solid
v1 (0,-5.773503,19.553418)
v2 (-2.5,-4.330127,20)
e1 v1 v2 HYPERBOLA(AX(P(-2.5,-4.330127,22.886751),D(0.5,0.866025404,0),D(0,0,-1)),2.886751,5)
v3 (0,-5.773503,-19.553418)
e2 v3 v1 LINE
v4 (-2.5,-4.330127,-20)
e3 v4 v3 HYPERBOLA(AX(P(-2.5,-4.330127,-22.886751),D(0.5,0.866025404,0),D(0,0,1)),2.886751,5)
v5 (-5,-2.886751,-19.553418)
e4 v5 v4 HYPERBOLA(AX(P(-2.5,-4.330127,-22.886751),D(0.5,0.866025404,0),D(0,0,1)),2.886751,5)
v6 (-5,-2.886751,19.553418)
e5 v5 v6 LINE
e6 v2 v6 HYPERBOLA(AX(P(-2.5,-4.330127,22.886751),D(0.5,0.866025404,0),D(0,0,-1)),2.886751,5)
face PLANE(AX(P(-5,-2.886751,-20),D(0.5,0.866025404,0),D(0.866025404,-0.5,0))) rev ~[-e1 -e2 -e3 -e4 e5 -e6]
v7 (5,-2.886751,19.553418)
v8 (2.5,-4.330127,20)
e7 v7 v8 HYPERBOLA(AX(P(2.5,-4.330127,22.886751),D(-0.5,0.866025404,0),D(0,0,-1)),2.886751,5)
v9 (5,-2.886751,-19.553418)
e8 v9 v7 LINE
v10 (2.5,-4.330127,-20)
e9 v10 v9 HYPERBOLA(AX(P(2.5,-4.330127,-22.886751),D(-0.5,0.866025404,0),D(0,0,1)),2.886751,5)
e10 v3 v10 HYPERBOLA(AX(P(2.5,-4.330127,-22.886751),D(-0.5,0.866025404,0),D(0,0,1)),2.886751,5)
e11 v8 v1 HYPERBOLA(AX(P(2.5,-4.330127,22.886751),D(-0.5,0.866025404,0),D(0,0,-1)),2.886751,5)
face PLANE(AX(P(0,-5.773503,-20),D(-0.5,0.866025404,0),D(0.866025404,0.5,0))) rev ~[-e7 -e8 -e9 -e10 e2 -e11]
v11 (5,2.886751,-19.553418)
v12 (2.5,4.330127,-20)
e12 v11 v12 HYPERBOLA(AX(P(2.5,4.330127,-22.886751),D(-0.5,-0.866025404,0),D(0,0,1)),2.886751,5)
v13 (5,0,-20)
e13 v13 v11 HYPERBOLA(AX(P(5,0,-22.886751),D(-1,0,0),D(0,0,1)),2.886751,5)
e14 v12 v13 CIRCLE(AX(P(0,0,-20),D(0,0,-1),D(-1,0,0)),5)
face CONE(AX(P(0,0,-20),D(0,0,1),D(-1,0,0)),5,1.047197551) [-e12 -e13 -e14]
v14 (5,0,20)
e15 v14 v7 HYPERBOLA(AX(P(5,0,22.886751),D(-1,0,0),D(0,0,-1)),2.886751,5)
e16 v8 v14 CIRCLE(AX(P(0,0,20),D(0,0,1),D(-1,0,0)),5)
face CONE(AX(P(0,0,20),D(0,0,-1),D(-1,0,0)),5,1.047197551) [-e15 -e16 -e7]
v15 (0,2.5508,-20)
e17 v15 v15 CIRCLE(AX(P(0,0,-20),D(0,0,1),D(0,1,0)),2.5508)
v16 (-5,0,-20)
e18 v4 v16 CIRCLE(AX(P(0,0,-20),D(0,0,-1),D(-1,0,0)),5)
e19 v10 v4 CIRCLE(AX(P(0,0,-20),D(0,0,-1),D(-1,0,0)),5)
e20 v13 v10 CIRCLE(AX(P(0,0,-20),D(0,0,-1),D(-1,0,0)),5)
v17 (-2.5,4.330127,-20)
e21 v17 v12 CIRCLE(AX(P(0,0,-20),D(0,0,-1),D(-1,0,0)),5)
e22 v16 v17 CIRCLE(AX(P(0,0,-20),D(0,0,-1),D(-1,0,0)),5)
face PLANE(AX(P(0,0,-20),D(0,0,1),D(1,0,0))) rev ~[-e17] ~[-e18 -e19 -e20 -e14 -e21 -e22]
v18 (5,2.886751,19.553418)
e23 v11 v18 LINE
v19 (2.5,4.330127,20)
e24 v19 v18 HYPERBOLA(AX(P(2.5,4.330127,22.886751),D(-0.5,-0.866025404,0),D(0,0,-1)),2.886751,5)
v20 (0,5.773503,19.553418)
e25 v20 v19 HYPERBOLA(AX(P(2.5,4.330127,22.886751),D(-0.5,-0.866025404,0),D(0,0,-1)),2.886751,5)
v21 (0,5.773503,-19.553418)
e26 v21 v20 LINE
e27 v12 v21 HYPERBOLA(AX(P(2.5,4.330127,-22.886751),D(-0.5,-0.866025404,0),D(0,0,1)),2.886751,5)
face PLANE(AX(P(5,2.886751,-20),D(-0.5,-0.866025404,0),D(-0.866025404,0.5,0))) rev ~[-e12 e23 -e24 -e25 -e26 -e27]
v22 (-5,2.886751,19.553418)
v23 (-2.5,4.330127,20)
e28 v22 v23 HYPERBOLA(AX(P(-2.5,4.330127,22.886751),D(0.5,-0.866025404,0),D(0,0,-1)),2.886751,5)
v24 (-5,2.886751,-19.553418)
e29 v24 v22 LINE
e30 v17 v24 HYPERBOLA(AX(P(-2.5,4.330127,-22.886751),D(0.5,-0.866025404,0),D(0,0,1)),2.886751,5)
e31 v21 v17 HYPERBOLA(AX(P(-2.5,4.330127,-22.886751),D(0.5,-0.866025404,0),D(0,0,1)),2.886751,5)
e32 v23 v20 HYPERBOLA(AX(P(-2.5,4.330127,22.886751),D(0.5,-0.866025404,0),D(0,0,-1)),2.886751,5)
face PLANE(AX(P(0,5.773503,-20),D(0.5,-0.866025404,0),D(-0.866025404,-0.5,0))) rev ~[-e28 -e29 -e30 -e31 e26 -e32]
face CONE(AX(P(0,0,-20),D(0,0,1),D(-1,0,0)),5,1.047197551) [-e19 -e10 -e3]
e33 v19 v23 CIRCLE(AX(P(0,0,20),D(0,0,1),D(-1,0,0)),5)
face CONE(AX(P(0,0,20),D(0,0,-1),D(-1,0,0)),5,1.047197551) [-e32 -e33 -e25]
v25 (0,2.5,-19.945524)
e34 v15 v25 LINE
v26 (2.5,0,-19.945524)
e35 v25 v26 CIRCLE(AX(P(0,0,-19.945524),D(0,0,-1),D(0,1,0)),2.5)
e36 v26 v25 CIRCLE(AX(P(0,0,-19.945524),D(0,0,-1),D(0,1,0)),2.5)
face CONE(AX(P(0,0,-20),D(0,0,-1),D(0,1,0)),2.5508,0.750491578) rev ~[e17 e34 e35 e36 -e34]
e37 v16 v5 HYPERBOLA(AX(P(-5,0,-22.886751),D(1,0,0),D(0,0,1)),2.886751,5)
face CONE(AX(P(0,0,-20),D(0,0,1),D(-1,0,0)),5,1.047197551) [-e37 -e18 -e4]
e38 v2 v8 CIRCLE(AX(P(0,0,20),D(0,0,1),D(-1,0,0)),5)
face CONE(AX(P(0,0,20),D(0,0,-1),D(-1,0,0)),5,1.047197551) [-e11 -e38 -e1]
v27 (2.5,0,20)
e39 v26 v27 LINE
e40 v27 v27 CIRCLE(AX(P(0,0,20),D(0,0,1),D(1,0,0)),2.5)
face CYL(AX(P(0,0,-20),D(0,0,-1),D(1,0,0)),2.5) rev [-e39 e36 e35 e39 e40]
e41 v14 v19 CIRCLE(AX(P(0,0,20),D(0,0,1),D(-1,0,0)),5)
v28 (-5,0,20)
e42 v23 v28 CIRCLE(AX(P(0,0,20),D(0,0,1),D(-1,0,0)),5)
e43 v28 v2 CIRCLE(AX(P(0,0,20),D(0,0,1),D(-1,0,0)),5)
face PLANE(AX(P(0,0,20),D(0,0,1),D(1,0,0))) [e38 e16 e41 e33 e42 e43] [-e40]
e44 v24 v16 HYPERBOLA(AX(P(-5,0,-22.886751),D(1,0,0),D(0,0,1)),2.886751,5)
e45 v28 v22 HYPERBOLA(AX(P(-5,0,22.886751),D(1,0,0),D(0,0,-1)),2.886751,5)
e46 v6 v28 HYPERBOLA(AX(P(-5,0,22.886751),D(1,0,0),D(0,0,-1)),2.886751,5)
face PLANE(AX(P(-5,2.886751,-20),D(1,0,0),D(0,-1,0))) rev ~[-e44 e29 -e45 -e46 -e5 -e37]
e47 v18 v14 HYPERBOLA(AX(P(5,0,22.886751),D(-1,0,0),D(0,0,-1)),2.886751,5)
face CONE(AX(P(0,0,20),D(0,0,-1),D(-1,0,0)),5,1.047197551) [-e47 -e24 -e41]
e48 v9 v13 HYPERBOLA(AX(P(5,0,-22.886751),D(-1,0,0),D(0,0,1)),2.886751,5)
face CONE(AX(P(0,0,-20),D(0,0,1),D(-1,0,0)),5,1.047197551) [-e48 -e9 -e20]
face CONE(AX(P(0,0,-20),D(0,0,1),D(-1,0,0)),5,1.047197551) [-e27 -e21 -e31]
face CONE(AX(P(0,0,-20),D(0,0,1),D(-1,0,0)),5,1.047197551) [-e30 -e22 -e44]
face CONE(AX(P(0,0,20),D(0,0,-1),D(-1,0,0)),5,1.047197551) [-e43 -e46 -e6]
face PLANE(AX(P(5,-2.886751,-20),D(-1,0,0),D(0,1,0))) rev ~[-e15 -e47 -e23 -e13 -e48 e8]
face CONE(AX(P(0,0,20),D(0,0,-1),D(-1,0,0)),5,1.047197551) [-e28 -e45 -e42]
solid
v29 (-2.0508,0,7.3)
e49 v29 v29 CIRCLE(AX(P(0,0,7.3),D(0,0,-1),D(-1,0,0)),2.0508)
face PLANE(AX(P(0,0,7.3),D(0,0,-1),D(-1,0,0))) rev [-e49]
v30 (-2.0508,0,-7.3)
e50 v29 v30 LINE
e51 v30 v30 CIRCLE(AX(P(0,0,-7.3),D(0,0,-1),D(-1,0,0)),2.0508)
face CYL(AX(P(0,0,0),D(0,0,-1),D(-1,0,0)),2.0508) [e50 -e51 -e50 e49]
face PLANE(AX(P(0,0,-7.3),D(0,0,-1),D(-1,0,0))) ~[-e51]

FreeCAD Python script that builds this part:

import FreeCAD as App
import Part
import Sketcher
Q = App.Units.Quantity


def faces_at(feature, points):
    """Names of the faces that lie closest to the given points."""
    faces = feature.Shape.Faces
    near = lambda p: min(range(len(faces)), key=lambda i: faces[i].distToShape(Part.Vertex(*p))[0])
    return sorted({f"Face{near(p) + 1}" for p in points})


def add_polygon(sketch, points):
    """Adds a closed chain of lines whose ends are joined by coincident constraints."""
    first, n = sketch.GeometryCount, len(points)
    for a, b in zip(points, points[1:] + points[:1]):
        sketch.addGeometry(Part.LineSegment(App.Vector(*a, 0), App.Vector(*b, 0)), False)
    for i in range(n):
        sketch.addConstraint(Sketcher.Constraint("Coincident", first + i, 2, first + (i + 1) % n, 1))

doc = App.newDocument("Part")
body = doc.addObject("PartDesign::Body", "Body")

sketch1 = doc.addObject("Sketcher::SketchObject", "Sketch")
body.addObject(sketch1)
sketch1.AttachmentSupport = (doc.XY_Plane, [""])
sketch1.MapMode = "FlatFace"
add_polygon(sketch1, [(0, 5.8), (-5, 2.9), (-5, -2.9), (0, -5.8), (5, -2.9), (5, 2.9)])
sketch1.addGeometry(Part.Circle(App.Vector(0, 0, 0), App.Vector(0, 0, 1), 2.5), False)
sketch1.addConstraint([
    Sketcher.Constraint("Vertical", 1),
    Sketcher.Constraint("Vertical", 4),
    Sketcher.Constraint("Coincident", 6, 3, -1, 1),
    Sketcher.Constraint("Symmetric", 0, 2, 3, 2, -1, 1),
    Sketcher.Constraint("Symmetric", 2, 2, 5, 2, -1, 1),
    Sketcher.Constraint("PointOnObject", 2, 2, -2),
    Sketcher.Constraint("Parallel", 2, 5),
    Sketcher.Constraint("Horizontal", 1, 2, 3, 2),
    Sketcher.Constraint("Diameter", 6, Q("5 mm")),
    Sketcher.Constraint("Angle", 0, Q("-150 deg")),
    Sketcher.Constraint("DistanceX", 0, 2, -1, 1, Q("5 mm")),
    Sketcher.Constraint("DistanceY", 1, 2, 1, 1, Q("5.773503 mm")),
])
pad1 = doc.addObject("PartDesign::Pad", "Pad")
body.addObject(pad1)
pad1.Profile = sketch1
pad1.Type = "TwoLengths"
pad1.Length = 20
pad1.Length2 = 20

sketch2 = doc.addObject("Sketcher::SketchObject", "Sketch001")
body.addObject(sketch2)
sketch2.AttachmentSupport = (doc.YZ_Plane, [""])
sketch2.MapMode = "FlatFace"
add_polygon(sketch2, [(0, -20), (2.6, -20), (0, -17.3)])
sketch2.addConstraint([
    Sketcher.Constraint("Horizontal", 0),
    Sketcher.Constraint("Vertical", 2),
    Sketcher.Constraint("PointOnObject", 1, 2, -2),
    Sketcher.Constraint("Angle", 1, Q("133 deg")),
    Sketcher.Constraint("DistanceY", 0, 2, -1, 1, Q("20 mm")),
    Sketcher.Constraint("DistanceX", 0, 1, 0, 2, Q("2.5508 mm")),
])
groove = doc.addObject("PartDesign::Groove", "Groove")
body.addObject(groove)
groove.Profile = sketch2
groove.ReferenceAxis = (sketch2, ["V_Axis"])
groove.Angle = 360
body2 = doc.addObject("PartDesign::Body", "Body001")

sketch3 = doc.addObject("Sketcher::SketchObject", "Sketch002")
body2.addObject(sketch3)
sketch3.AttachmentSupport = (doc.getObject("XY_Plane001"), [""])
sketch3.MapMode = "FlatFace"
sketch3.AttachmentOffset = App.Placement(App.Vector(0, 0, -20), App.Rotation())
add_polygon(sketch3, [(83, 83), (83, -83), (-83, -83), (-83, 83)])
sketch3.addGeometry(Part.Circle(App.Vector(0, 0, 0), App.Vector(0, 0, 1), 5), False)
sketch3.addConstraint([
    Sketcher.Constraint("Vertical", 0),
    Sketcher.Constraint("Horizontal", 1),
    Sketcher.Constraint("Vertical", 2),
    Sketcher.Constraint("Horizontal", 3),
    Sketcher.Constraint("Coincident", 4, 3, -1, 1),
    Sketcher.Constraint("Symmetric", 0, 2, 2, 2, -1, 1),
    Sketcher.Constraint("Diameter", 4, Q("10 mm")),
    Sketcher.Constraint("DistanceX", 1, 2, 1, 1, Q("165.094 mm")),
    Sketcher.Constraint("DistanceY", 0, 2, 0, 1, Q("166.642 mm")),
])
pad2 = doc.addObject("PartDesign::Pad", "Pad001")
body2.addObject(pad2)
pad2.Profile = sketch3
pad2.Length = 41.722639
doc.recompute()

datumplane = doc.addObject("PartDesign::Plane", "DatumPlane")
body2.addObject(datumplane)
datumplane.AttachmentSupport = (doc.getObject("XY_Plane001"), [""])
datumplane.MapMode = "FlatFace"
datumplane.AttachmentOffset = App.Placement(App.Vector(0, 0, -20), App.Rotation())
draft = doc.addObject("PartDesign::Draft", "Draft")
body2.addObject(draft)
draft.Base = (pad2, faces_at(pad2, [
    (0, -83.321, 0.861),
    (-82.547, 0, 0.861),
    (0, 83.321, 0.861),
    (82.547, 0, 0.861),
    (5, 0, 0.861),
]))
draft.NeutralPlane = (datumplane, [""])
draft.Angle = 60
draft.Reversed = False
doc.recompute()

boolean = doc.addObject("PartDesign::Boolean", "Boolean")
body.addObject(boolean)
boolean.Type = "Cut"
boolean.addObjects([body2])
body3 = doc.addObject("PartDesign::Body", "Body002")

sketch4 = doc.addObject("Sketcher::SketchObject", "Sketch003")
body3.addObject(sketch4)
sketch4.AttachmentSupport = (doc.getObject("XY_Plane002"), [""])
sketch4.MapMode = "FlatFace"
sketch4.AttachmentOffset = App.Placement(App.Vector(0, 0, 20), App.Rotation())
add_polygon(sketch4, [(83, -83), (83, 83), (-83, 83), (-83, -83)])
sketch4.addGeometry(Part.Circle(App.Vector(0, 0, 0), App.Vector(0, 0, 1), 5), False)
sketch4.addConstraint([
    Sketcher.Constraint("Vertical", 0),
    Sketcher.Constraint("Horizontal", 1),
    Sketcher.Constraint("Vertical", 2),
    Sketcher.Constraint("Horizontal", 3),
    Sketcher.Constraint("Coincident", 4, 3, -1, 1),
    Sketcher.Constraint("Symmetric", 0, 2, 2, 2, -1, 1),
    Sketcher.Constraint("Diameter", 4, Q("10 mm")),
    Sketcher.Constraint("DistanceX", 1, 2, 1, 1, Q("165.094 mm")),
    Sketcher.Constraint("DistanceY", 0, 1, 0, 2, Q("166.642 mm")),
])
pad3 = doc.addObject("PartDesign::Pad", "Pad002")
body3.addObject(pad3)
pad3.Profile = sketch4
pad3.Length = 41.722639
pad3.Reversed = True
doc.recompute()

datumplane2 = doc.addObject("PartDesign::Plane", "DatumPlane001")
body3.addObject(datumplane2)
datumplane2.AttachmentSupport = (doc.getObject("XY_Plane002"), [""])
datumplane2.MapMode = "FlatFace"
datumplane2.AttachmentOffset = App.Placement(App.Vector(0, 0, 20), App.Rotation())
draft2 = doc.addObject("PartDesign::Draft", "Draft001")
body3.addObject(draft2)
draft2.Base = (pad3, faces_at(pad3, [
    (0, -83.321, -0.861),
    (-82.547, 0, -0.861),
    (0, 83.321, -0.861),
    (82.547, 0, -0.861),
    (5, 0, -0.861),
]))
draft2.NeutralPlane = (datumplane2, [""])
draft2.Angle = 60
draft2.Reversed = True
doc.recompute()

boolean2 = doc.addObject("PartDesign::Boolean", "Boolean001")
body.addObject(boolean2)
boolean2.Type = "Cut"
boolean2.addObjects([body3])
body4 = doc.addObject("PartDesign::Body", "Body003")

sketch5 = doc.addObject("Sketcher::SketchObject", "Sketch004")
body4.addObject(sketch5)
sketch5.AttachmentSupport = (doc.getObject("YZ_Plane003"), [""])
sketch5.MapMode = "FlatFace"
add_polygon(sketch5, [(2.1, 7.3), (0, 7.3), (0, -7.3), (2.1, -7.3)])
sketch5.addConstraint([
    Sketcher.Constraint("Horizontal", 0),
    Sketcher.Constraint("Vertical", 1),
    Sketcher.Constraint("Horizontal", 2),
    Sketcher.Constraint("Vertical", 3),
    Sketcher.Constraint("Symmetric", 0, 2, 1, 2, -1, 1),
    Sketcher.Constraint("DistanceY", 1, 2, 1, 1, Q("14.6 mm")),
    Sketcher.Constraint("DistanceX", 0, 2, 0, 1, Q("2.0508 mm")),
])
revolution = doc.addObject("PartDesign::Revolution", "Revolution")
body4.addObject(revolution)
revolution.Profile = sketch5
revolution.ReferenceAxis = (sketch5, ["V_Axis"])
revolution.Angle = 360

doc.recompute()
